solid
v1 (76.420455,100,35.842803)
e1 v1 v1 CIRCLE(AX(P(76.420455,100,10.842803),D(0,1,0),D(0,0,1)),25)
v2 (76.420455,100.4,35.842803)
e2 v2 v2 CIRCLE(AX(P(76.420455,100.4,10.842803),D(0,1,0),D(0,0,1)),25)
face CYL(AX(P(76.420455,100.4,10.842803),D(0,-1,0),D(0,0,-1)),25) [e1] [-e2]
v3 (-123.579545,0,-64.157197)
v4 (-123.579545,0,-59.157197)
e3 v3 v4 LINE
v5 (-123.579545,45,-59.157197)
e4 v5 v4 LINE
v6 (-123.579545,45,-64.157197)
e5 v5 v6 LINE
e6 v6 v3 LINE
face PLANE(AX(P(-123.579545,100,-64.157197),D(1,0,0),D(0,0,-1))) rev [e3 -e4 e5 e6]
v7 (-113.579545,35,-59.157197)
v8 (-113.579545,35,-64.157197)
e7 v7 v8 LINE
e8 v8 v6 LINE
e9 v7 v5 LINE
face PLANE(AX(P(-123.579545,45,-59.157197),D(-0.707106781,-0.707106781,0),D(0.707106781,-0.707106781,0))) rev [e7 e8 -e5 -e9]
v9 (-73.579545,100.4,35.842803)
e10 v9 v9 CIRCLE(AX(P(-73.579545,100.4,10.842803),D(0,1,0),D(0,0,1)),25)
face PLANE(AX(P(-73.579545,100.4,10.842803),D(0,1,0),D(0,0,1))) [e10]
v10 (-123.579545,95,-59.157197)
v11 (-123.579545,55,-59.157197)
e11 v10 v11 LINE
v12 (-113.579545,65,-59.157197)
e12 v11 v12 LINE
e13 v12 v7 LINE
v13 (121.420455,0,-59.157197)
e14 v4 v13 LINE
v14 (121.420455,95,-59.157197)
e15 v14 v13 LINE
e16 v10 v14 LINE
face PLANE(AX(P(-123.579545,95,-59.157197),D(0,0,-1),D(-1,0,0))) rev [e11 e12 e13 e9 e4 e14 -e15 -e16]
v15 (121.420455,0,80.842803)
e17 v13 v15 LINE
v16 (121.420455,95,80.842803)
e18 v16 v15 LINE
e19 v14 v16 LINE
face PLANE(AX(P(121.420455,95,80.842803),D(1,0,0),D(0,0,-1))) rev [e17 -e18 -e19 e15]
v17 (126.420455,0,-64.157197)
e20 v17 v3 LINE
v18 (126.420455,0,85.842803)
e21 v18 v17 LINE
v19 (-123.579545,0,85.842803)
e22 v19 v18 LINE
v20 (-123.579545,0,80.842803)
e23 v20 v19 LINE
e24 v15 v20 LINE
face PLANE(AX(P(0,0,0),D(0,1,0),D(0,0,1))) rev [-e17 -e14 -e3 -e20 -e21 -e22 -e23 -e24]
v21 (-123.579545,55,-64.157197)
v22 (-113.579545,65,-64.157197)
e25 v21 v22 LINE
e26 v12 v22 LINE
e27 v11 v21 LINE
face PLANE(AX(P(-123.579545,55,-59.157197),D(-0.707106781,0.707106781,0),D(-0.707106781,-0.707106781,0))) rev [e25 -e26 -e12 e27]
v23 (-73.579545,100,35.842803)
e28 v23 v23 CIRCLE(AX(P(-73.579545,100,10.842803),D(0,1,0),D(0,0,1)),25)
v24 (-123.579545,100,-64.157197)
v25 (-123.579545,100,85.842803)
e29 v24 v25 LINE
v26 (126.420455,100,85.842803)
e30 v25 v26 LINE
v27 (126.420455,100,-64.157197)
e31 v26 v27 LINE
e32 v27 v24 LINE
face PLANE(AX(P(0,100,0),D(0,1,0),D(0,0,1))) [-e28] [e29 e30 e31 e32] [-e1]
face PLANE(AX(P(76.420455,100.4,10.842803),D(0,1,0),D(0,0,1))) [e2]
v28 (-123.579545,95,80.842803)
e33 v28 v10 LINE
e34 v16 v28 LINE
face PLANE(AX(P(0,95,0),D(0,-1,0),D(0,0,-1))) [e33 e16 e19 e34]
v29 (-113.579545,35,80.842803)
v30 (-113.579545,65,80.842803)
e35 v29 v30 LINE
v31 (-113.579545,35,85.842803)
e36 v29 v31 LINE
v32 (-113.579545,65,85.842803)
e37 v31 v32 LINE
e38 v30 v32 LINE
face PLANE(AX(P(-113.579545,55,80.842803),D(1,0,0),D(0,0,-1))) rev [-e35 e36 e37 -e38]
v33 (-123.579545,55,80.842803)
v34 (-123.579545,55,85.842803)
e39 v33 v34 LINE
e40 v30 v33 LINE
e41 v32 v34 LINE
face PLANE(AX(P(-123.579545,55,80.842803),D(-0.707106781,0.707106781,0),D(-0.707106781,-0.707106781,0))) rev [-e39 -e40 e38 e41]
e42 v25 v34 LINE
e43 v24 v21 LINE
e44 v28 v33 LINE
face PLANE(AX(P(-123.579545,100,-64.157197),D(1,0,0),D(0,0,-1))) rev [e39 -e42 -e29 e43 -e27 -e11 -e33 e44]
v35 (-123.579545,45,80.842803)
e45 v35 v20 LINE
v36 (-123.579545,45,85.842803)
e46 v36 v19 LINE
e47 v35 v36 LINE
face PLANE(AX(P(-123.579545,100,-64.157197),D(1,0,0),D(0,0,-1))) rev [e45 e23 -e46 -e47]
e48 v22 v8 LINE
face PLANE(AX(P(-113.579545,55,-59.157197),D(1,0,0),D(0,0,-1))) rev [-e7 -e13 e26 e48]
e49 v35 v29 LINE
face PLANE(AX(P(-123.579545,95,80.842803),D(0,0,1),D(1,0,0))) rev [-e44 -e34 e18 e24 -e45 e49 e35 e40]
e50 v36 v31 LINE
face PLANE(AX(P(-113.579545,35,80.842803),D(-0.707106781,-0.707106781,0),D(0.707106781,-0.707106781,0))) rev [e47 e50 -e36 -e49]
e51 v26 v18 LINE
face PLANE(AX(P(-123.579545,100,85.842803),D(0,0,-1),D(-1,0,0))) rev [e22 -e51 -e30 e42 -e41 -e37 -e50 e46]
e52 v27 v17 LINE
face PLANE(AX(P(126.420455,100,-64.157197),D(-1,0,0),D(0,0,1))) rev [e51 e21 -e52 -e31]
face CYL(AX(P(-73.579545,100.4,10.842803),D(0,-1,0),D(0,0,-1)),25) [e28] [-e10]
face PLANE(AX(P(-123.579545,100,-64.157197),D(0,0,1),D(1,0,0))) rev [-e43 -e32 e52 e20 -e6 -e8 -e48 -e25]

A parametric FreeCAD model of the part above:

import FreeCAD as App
import Part
import Sketcher

V = App.Vector
Q = App.Units.Quantity


def add_polygon(sketch, points):
    """Adds a closed chain of lines whose ends are joined by coincident constraints."""
    first, n = sketch.GeometryCount, len(points)
    for a, b in zip(points, points[1:] + points[:1]):
        sketch.addGeometry(Part.LineSegment(App.Vector(*a, 0), App.Vector(*b, 0)), False)
    for i in range(n):
        sketch.addConstraint(Sketcher.Constraint("Coincident", first + i, 2, first + (i + 1) % n, 1))

doc = App.newDocument("Part")
body = doc.addObject("PartDesign::Body", "Body")

sketch1 = doc.addObject("Sketcher::SketchObject", "Sketch")
body.addObject(sketch1)
sketch1.AttachmentSupport = (doc.XZ_Plane, [""])
sketch1.MapMode = "FlatFace"
add_polygon(sketch1, [(-124, -64), (-124, 86), (126, 86), (126, -64)])
sketch1.addConstraint([
    Sketcher.Constraint("Vertical", 0),
    Sketcher.Constraint("Horizontal", 1),
    Sketcher.Constraint("Vertical", 2),
    Sketcher.Constraint("Horizontal", 3),
    Sketcher.Constraint("DistanceX", 1, 1, 1, 2, Q("250 mm")),
    Sketcher.Constraint("DistanceY", 0, 1, 0, 2, Q("150 mm")),
    Sketcher.Constraint("DistanceX", 0, 2, -1, 1, Q("123.579545 mm")),
    Sketcher.Constraint("DistanceY", -1, 1, 0, 2, Q("85.842803 mm")),
])
pad1 = doc.addObject("PartDesign::Pad", "Pad")
body.addObject(pad1)
pad1.Profile = sketch1
pad1.Length = 100
pad1.Reversed = True

sketch2 = doc.addObject("Sketcher::SketchObject", "Sketch001")
body.addObject(sketch2)
sketch2.AttachmentSupport = (doc.XZ_Plane, [""])
sketch2.MapMode = "FlatFace"
sketch2.AttachmentOffset = App.Placement(V(0, 0, -100), App.Rotation())
sketch2.addGeometry([
    Part.Circle(V(76, 11, 0), V(0, 0, 1), 25),
    Part.Circle(V(-74, 11, 0), V(0, 0, 1), 25),
], False)
sketch2.addConstraint([
    Sketcher.Constraint("Equal", 0, 1),
    Sketcher.Constraint("Horizontal", 0, 3, 1, 3),
    Sketcher.Constraint("Diameter", 0, Q("50 mm")),
    Sketcher.Constraint("DistanceX", 1, 3, 0, 3, Q("150 mm")),
    Sketcher.Constraint("DistanceX", -1, 1, 0, 3, Q("76.420455 mm")),
    Sketcher.Constraint("DistanceY", -1, 1, 0, 3, Q("10.842803 mm")),
])
pad2 = doc.addObject("PartDesign::Pad", "Pad001")
body.addObject(pad2)
pad2.Profile = sketch2
pad2.Length = 0.4
pad2.Reversed = True

sketch3 = doc.addObject("Sketcher::SketchObject", "Sketch002")
body.addObject(sketch3)
sketch3.AttachmentSupport = (doc.XZ_Plane, [""])
sketch3.MapMode = "FlatFace"
add_polygon(sketch3, [(-124, 81), (-124, -59), (121, -59), (121, 81)])
sketch3.addConstraint([
    Sketcher.Constraint("Vertical", 0),
    Sketcher.Constraint("Horizontal", 1),
    Sketcher.Constraint("Vertical", 2),
    Sketcher.Constraint("Horizontal", 3),
    Sketcher.Constraint("DistanceX", 1, 1, 1, 2, Q("245 mm")),
    Sketcher.Constraint("DistanceY", 0, 2, 0, 1, Q("140 mm")),
    Sketcher.Constraint("DistanceX", 0, 2, -1, 1, Q("123.579545 mm")),
    Sketcher.Constraint("DistanceY", 0, 2, -1, 1, Q("59.157197 mm")),
])
pocket1 = doc.addObject("PartDesign::Pocket", "Pocket")
body.addObject(pocket1)
pocket1.Profile = sketch3
pocket1.Length = 95

sketch4 = doc.addObject("Sketcher::SketchObject", "Sketch003")
body.addObject(sketch4)
sketch4.AttachmentSupport = (doc.XY_Plane, [""])
sketch4.MapMode = "FlatFace"
sketch4.AttachmentOffset = App.Placement(V(0, 0, 85.842803), App.Rotation())
add_polygon(sketch4, [(-124, 55), (-124, 45), (-114, 45), (-114, 55)])
sketch4.addConstraint([
    Sketcher.Constraint("Vertical", 0),
    Sketcher.Constraint("Horizontal", 1),
    Sketcher.Constraint("Vertical", 2),
    Sketcher.Constraint("Horizontal", 3),
    Sketcher.Constraint("Equal", 3, 0),
    Sketcher.Constraint("DistanceX", 1, 1, 1, 2, Q("10 mm")),
    Sketcher.Constraint("DistanceY", -1, 1, 0, 2, Q("45 mm")),
    Sketcher.Constraint("DistanceX", 0, 2, -1, 1, Q("123.579545 mm")),
])
pocket2 = doc.addObject("PartDesign::Pocket", "Pocket001")
body.addObject(pocket2)
pocket2.Profile = sketch4
pocket2.Length = 5

sketch5 = doc.addObject("Sketcher::SketchObject", "Sketch004")
body.addObject(sketch5)
sketch5.AttachmentSupport = (doc.XY_Plane, [""])
sketch5.MapMode = "FlatFace"
sketch5.AttachmentOffset = App.Placement(V(0, 0, 85.842803), App.Rotation())
add_polygon(sketch5, [(-114, 65), (-124, 55), (-114, 55)])
add_polygon(sketch5, [(-114, 45), (-124, 45), (-114, 35)])
sketch5.addConstraint([
    Sketcher.Constraint("Horizontal", 1),
    Sketcher.Constraint("Vertical", 2),
    Sketcher.Constraint("Horizontal", 3),
    Sketcher.Constraint("Vertical", 5),
    Sketcher.Constraint("Perpendicular", 0, 4),
    Sketcher.Constraint("Vertical", 0, 2, 3, 2),
    Sketcher.Constraint("Vertical", 2, 2, 4, 2),
    Sketcher.Constraint("Equal", 3, 2),
    Sketcher.Constraint("DistanceX", 1, 1, 1, 2, Q("10 mm")),
    Sketcher.Constraint("DistanceY", -1, 1, 0, 2, Q("55 mm")),
    Sketcher.Constraint("DistanceY", -1, 1, 3, 2, Q("45 mm")),
    Sketcher.Constraint("DistanceX", 0, 2, -1, 1, Q("123.579545 mm")),
])
pocket3 = doc.addObject("PartDesign::Pocket", "Pocket002")
body.addObject(pocket3)
pocket3.Profile = sketch5
pocket3.Length = 5

sketch6 = doc.addObject("Sketcher::SketchObject", "Sketch005")
body.addObject(sketch6)
sketch6.AttachmentSupport = (doc.XY_Plane, [""])
sketch6.MapMode = "FlatFace"
sketch6.AttachmentOffset = App.Placement(V(0, 0, -64.157197), App.Rotation())
add_polygon(sketch6, [(-114, 55), (-114, 45), (-124, 45), (-124, 55)])
sketch6.addConstraint([
    Sketcher.Constraint("Vertical", 0),
    Sketcher.Constraint("Horizontal", 1),
    Sketcher.Constraint("Vertical", 2),
    Sketcher.Constraint("Horizontal", 3),
    Sketcher.Constraint("Equal", 3, 0),
    Sketcher.Constraint("DistanceX", 1, 2, 1, 1, Q("10 mm")),
    Sketcher.Constraint("DistanceY", -1, 1, 0, 2, Q("45 mm")),
    Sketcher.Constraint("DistanceX", 0, 2, -1, 1, Q("113.579545 mm")),
])
pocket4 = doc.addObject("PartDesign::Pocket", "Pocket003")
body.addObject(pocket4)
pocket4.Profile = sketch6
pocket4.Length = 5
pocket4.Reversed = True

sketch7 = doc.addObject("Sketcher::SketchObject", "Sketch006")
body.addObject(sketch7)
sketch7.AttachmentSupport = (doc.XY_Plane, [""])
sketch7.MapMode = "FlatFace"
sketch7.AttachmentOffset = App.Placement(V(0, 0, -64.157197), App.Rotation())
add_polygon(sketch7, [(-124, 55), (-114, 65), (-114, 55)])
add_polygon(sketch7, [(-114, 35), (-124, 45), (-114, 45)])
sketch7.addConstraint([
    Sketcher.Constraint("Vertical", 1),
    Sketcher.Constraint("Horizontal", 2),
    Sketcher.Constraint("Horizontal", 4),
    Sketcher.Constraint("Vertical", 5),
    Sketcher.Constraint("Perpendicular", 0, 3),
    Sketcher.Constraint("Vertical", 2, 2, 3, 2),
    Sketcher.Constraint("Vertical", 1, 2, 4, 2),
    Sketcher.Constraint("Equal", 4, 1),
    Sketcher.Constraint("DistanceX", 2, 2, 2, 1, Q("10 mm")),
    Sketcher.Constraint("DistanceY", -1, 1, 0, 2, Q("65 mm")),
    Sketcher.Constraint("DistanceY", -1, 1, 3, 2, Q("45 mm")),
    Sketcher.Constraint("DistanceX", 0, 2, -1, 1, Q("113.579545 mm")),
])
pocket5 = doc.addObject("PartDesign::Pocket", "Pocket004")
body.addObject(pocket5)
pocket5.Profile = sketch7
pocket5.Length = 5
pocket5.Reversed = True

doc.recompute()
